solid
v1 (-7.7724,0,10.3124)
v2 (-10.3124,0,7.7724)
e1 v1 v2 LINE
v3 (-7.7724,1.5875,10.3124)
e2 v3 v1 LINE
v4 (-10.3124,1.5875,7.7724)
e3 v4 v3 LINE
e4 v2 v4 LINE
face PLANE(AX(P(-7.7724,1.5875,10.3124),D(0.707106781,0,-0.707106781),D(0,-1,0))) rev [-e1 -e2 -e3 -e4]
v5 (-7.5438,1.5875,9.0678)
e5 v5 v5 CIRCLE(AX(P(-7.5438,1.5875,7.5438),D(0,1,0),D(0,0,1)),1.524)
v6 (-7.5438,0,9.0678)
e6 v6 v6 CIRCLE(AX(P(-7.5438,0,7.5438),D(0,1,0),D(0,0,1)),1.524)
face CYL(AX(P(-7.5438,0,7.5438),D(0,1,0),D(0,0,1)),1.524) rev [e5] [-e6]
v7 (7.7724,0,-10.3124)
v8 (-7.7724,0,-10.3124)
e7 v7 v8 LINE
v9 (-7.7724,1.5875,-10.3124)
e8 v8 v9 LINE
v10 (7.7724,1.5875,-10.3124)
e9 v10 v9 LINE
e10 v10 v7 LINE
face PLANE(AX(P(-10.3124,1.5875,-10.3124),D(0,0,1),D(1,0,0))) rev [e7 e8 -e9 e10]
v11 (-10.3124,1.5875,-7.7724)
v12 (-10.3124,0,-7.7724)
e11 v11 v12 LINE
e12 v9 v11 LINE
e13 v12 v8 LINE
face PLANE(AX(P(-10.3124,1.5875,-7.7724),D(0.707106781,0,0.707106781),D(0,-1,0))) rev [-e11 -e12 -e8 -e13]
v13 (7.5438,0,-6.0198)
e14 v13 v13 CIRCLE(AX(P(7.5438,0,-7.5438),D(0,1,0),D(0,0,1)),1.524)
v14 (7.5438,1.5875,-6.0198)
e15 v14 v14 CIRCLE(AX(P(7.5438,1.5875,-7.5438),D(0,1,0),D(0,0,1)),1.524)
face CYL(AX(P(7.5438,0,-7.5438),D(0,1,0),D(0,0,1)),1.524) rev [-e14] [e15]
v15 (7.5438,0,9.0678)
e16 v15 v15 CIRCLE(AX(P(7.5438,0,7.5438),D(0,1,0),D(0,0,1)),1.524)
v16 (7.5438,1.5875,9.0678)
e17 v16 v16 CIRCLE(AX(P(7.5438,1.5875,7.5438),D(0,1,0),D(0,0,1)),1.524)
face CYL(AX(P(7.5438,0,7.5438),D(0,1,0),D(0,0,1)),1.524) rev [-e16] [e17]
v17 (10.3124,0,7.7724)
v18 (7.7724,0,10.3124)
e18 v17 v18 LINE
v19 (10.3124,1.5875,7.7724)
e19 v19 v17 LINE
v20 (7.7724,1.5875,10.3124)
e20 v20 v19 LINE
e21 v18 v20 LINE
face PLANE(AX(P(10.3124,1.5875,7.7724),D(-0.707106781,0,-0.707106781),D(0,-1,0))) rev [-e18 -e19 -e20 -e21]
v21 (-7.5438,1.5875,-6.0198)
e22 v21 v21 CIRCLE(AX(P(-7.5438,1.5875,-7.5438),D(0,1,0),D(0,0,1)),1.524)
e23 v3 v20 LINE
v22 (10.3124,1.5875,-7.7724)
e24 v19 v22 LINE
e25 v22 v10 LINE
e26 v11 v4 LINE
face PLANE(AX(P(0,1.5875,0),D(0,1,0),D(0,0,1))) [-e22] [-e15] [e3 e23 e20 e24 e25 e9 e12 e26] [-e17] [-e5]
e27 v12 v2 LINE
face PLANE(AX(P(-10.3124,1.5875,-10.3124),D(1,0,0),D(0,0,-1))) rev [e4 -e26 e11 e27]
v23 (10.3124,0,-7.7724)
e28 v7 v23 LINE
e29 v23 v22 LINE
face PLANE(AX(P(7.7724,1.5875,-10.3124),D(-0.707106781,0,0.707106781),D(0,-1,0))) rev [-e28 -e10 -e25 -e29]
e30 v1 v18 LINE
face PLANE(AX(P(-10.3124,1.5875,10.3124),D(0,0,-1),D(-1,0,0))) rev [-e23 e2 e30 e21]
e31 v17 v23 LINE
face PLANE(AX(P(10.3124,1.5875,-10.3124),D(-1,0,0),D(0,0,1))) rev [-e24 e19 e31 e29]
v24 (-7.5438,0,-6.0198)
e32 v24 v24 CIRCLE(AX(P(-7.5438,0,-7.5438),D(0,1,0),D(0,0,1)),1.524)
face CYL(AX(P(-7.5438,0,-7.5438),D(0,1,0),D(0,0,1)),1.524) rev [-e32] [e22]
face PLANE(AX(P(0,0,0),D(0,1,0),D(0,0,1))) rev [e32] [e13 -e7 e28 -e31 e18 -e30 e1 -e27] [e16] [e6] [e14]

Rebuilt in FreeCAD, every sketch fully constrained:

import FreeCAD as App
import Part
import Sketcher
from FreeCAD import Vector
Q = App.Units.Quantity


def edges_at(feature, points):
    """Names of the edges that pass closest to the given points."""
    edges = feature.Shape.Edges
    near = lambda p: min(range(len(edges)), key=lambda i: edges[i].distToShape(Part.Vertex(*p))[0])
    return sorted({f"Edge{near(p) + 1}" for p in points})


def add_polygon(sketch, points):
    """Adds a closed chain of lines whose ends are joined by coincident constraints."""
    first, n = sketch.GeometryCount, len(points)
    for a, b in zip(points, points[1:] + points[:1]):
        sketch.addGeometry(Part.LineSegment(App.Vector(*a, 0), App.Vector(*b, 0)), False)
    for i in range(n):
        sketch.addConstraint(Sketcher.Constraint("Coincident", first + i, 2, first + (i + 1) % n, 1))

doc = App.newDocument("Part")
params = doc.addObject("Spreadsheet::Sheet", "Params")
for row, (alias, value) in enumerate([
    ("sketch1_width", "0.812 in"),
    ("pad1_length", "0.0625 in"),
    ("chamfer_size", "0.1 in"),
    ("sketch2_diameter", "0.12 in"),
], start=1):
    params.set(f"A{row}", alias)
    params.set(f"B{row}", "=" + value)
    params.setAlias(f"B{row}", alias)

body = doc.addObject("PartDesign::Body", "Body")

sketch1 = body.newObject("Sketcher::SketchObject", "Sketch")
sketch1.AttachmentSupport = (doc.getObject("XZ_Plane"), [""])
sketch1.MapMode = "FlatFace"
add_polygon(sketch1, [(-10, -10), (-10, 10), (10, 10), (10, -10)])
sketch1.addConstraint([
    Sketcher.Constraint("Vertical", 0),
    Sketcher.Constraint("Horizontal", 1),
    Sketcher.Constraint("Vertical", 2),
    Sketcher.Constraint("Horizontal", 3),
    Sketcher.Constraint("Symmetric", 0, 2, 2, 2, -1, 1),
    Sketcher.Constraint("Equal", 3, 0),
    Sketcher.Constraint("DistanceX", 1, 1, 1, 2, Q("0.812 in")),
])
sketch1.setExpression("Constraints[10]", "Params.sketch1_width")
pad1 = body.newObject("PartDesign::Pad", "Pad")
pad1.Profile = sketch1
pad1.setExpression("Length", "Params.pad1_length")
pad1.Reversed = True
doc.recompute()

chamfer = body.newObject("PartDesign::Chamfer", "Chamfer")
chamfer.Base = (pad1, edges_at(pad1, [
    (10.312, 0.794, 10.312),
    (-10.312, 0.794, 10.312),
    (-10.312, 0.794, -10.312),
    (10.312, 0.794, -10.312),
]))
chamfer.setExpression("Size", "Params.chamfer_size")

sketch2 = body.newObject("Sketcher::SketchObject", "Sketch001")
sketch2.AttachmentSupport = (doc.getObject("XZ_Plane"), [""])
sketch2.MapMode = "FlatFace"
sketch2.AttachmentOffset = App.Placement(Vector(0, 0, -0.0625 * 25.4), App.Rotation())
sketch2.addGeometry([
    Part.Circle(Vector(-7.5, -7.5, 0), Vector(0, 0, 1), 1.5),
    Part.Circle(Vector(7.5, -7.5, 0), Vector(0, 0, 1), 1.5),
    Part.Circle(Vector(7.5, 7.5, 0), Vector(0, 0, 1), 1.5),
    Part.Circle(Vector(-7.5, 7.5, 0), Vector(0, 0, 1), 1.5),
], False)
sketch2.addConstraint([
    Sketcher.Constraint("Equal", 0, 1),
    Sketcher.Constraint("Equal", 1, 2),
    Sketcher.Constraint("Equal", 2, 3),
    Sketcher.Constraint("Symmetric", 0, 3, 2, 3, -1, 1),
    Sketcher.Constraint("Symmetric", 1, 3, 3, 3, -1, 1),
    Sketcher.Constraint("Symmetric", 0, 3, 1, 3, -2),
    Sketcher.Constraint("Diameter", 0, Q("0.12 in")),
    Sketcher.Constraint("DistanceX", 0, 3, -1, 1, Q("0.297 in")),
    Sketcher.Constraint("DistanceY", 0, 3, -1, 1, Q("0.297 in")),
])
sketch2.setExpression("Constraints[6]", "Params.sketch2_diameter")
pocket1 = body.newObject("PartDesign::Pocket", "Pocket")
pocket1.Profile = sketch2
pocket1.Type = "ThroughAll"
pocket1.Reversed = True

doc.recompute()
